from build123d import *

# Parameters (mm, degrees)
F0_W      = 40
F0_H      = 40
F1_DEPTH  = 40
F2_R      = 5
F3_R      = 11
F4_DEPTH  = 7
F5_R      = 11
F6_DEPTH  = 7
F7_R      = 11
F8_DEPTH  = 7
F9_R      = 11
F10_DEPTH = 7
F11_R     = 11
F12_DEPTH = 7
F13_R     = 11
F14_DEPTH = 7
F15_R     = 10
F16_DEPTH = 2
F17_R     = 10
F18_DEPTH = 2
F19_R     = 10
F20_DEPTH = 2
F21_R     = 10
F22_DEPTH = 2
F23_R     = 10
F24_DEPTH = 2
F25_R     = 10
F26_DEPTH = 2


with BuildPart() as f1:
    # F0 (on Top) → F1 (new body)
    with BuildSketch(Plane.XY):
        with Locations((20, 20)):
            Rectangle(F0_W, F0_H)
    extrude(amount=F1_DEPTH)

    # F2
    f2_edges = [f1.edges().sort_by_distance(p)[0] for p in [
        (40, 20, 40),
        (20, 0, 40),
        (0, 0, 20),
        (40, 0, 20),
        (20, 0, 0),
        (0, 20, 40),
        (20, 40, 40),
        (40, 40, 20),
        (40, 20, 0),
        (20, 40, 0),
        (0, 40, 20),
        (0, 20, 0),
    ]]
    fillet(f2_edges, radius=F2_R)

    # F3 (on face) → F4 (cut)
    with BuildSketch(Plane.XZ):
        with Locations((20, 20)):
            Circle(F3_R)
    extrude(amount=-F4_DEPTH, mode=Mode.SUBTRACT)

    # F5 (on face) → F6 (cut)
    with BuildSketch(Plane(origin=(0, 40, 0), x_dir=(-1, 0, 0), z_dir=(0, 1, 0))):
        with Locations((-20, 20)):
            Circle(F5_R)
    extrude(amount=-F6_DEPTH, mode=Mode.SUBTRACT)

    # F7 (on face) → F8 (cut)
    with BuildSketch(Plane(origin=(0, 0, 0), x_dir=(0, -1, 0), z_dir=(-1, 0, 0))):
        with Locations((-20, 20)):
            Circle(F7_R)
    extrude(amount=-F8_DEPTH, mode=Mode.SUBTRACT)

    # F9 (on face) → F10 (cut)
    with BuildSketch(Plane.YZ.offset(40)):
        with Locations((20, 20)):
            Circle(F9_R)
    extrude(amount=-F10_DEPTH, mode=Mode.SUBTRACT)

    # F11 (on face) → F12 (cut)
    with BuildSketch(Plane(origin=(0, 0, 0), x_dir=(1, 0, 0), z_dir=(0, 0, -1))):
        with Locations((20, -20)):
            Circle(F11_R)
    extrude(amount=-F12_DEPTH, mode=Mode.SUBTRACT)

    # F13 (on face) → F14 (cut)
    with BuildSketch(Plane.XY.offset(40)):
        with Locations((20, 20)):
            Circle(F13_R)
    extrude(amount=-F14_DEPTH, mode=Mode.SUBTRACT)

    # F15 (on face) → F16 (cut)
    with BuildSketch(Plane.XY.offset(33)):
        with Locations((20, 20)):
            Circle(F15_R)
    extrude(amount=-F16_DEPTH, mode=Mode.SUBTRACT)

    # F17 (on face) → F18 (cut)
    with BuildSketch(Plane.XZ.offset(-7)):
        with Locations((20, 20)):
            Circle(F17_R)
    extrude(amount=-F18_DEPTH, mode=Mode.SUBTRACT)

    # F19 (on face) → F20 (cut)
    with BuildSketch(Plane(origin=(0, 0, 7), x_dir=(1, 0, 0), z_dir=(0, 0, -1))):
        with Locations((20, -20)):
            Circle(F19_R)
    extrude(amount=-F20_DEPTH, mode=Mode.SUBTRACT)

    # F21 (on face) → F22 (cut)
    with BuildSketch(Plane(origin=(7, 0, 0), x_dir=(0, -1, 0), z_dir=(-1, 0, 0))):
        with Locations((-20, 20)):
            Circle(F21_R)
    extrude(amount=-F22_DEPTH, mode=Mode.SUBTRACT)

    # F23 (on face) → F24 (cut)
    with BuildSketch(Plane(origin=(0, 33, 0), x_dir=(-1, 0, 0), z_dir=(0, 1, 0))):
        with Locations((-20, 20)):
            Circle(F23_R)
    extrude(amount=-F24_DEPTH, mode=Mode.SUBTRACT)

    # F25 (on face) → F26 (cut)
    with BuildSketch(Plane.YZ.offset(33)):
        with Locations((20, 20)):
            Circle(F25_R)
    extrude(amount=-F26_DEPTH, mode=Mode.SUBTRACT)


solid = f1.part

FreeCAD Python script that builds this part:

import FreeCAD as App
import Part
import Sketcher
from FreeCAD import Vector
Q = App.Units.Quantity

doc = App.newDocument("Part")
body = doc.addObject("PartDesign::Body", "Body")

sketch1 = doc.addObject("Sketcher::SketchObject", "Sketch")
body.addObject(sketch1)
sketch1.AttachmentSupport = (doc.XY_Plane, [""])
sketch1.MapMode = "FlatFace"
sketch1.addGeometry([
    Part.LineSegment(Vector(0, 40, 0), Vector(0, 0, 0)),
    Part.LineSegment(Vector(0, 0, 0), Vector(40, 0, 0)),
    Part.LineSegment(Vector(40, 0, 0), Vector(40, 40, 0)),
    Part.LineSegment(Vector(40, 40, 0), Vector(0, 40, 0)),
], False)
sketch1.addConstraint([
    Sketcher.Constraint("Coincident", 0, 2, 1, 1),
    Sketcher.Constraint("Coincident", 1, 2, 2, 1),
    Sketcher.Constraint("Coincident", 2, 2, 3, 1),
    Sketcher.Constraint("Coincident", 3, 2, 0, 1),
    Sketcher.Constraint("Vertical", 0),
    Sketcher.Constraint("Horizontal", 1),
    Sketcher.Constraint("Vertical", 2),
    Sketcher.Constraint("Horizontal", 3),
    Sketcher.Constraint("Coincident", 0, 2, -1, 1),
    Sketcher.Constraint("Equal", 3, 0),
    Sketcher.Constraint("DistanceX", 1, 1, 1, 2, Q("40 mm")),
])
pad1 = doc.addObject("PartDesign::Pad", "Pad")
body.addObject(pad1)
pad1.Profile = sketch1
pad1.Length = 40
doc.recompute()

fillet = doc.addObject("PartDesign::Fillet", "Fillet")
body.addObject(fillet)
fillet.Base = (pad1, ["Edge1"])
fillet.UseAllEdges = True
fillet.Radius = 5

sketch2 = doc.addObject("Sketcher::SketchObject", "Sketch001")
body.addObject(sketch2)
sketch2.AttachmentSupport = (doc.XZ_Plane, [""])
sketch2.MapMode = "FlatFace"
sketch2.addGeometry(Part.Circle(Vector(20, 20, 0), Vector(0, 0, 1), 11), False)
sketch2.addConstraint([
    Sketcher.Constraint("Diameter", 0, Q("22 mm")),
    Sketcher.Constraint("DistanceX", -1, 1, 0, 3, Q("20 mm")),
    Sketcher.Constraint("DistanceY", -1, 1, 0, 3, Q("20 mm")),
])
pocket1 = doc.addObject("PartDesign::Pocket", "Pocket")
body.addObject(pocket1)
pocket1.Profile = sketch2
pocket1.Length = 7

sketch3 = doc.addObject("Sketcher::SketchObject", "Sketch002")
body.addObject(sketch3)
sketch3.AttachmentSupport = (doc.XZ_Plane, [""])
sketch3.MapMode = "FlatFace"
sketch3.AttachmentOffset = App.Placement(Vector(0, 0, -40), App.Rotation())
sketch3.addGeometry(Part.Circle(Vector(20, 20, 0), Vector(0, 0, 1), 11), False)
sketch3.addConstraint([
    Sketcher.Constraint("Diameter", 0, Q("22 mm")),
    Sketcher.Constraint("DistanceX", -1, 1, 0, 3, Q("20 mm")),
    Sketcher.Constraint("DistanceY", -1, 1, 0, 3, Q("20 mm")),
])
pocket2 = doc.addObject("PartDesign::Pocket", "Pocket001")
body.addObject(pocket2)
pocket2.Profile = sketch3
pocket2.Length = 7
pocket2.Reversed = True

sketch4 = doc.addObject("Sketcher::SketchObject", "Sketch003")
body.addObject(sketch4)
sketch4.AttachmentSupport = (doc.YZ_Plane, [""])
sketch4.MapMode = "FlatFace"
sketch4.addGeometry(Part.Circle(Vector(20, 20, 0), Vector(0, 0, 1), 11), False)
sketch4.addConstraint([
    Sketcher.Constraint("Diameter", 0, Q("22 mm")),
    Sketcher.Constraint("DistanceX", -1, 1, 0, 3, Q("20 mm")),
    Sketcher.Constraint("DistanceY", -1, 1, 0, 3, Q("20 mm")),
])
pocket3 = doc.addObject("PartDesign::Pocket", "Pocket002")
body.addObject(pocket3)
pocket3.Profile = sketch4
pocket3.Length = 7
pocket3.Reversed = True

sketch5 = doc.addObject("Sketcher::SketchObject", "Sketch004")
body.addObject(sketch5)
sketch5.AttachmentSupport = (doc.YZ_Plane, [""])
sketch5.MapMode = "FlatFace"
sketch5.AttachmentOffset = App.Placement(Vector(0, 0, 40), App.Rotation())
sketch5.addGeometry(Part.Circle(Vector(20, 20, 0), Vector(0, 0, 1), 11), False)
sketch5.addConstraint([
    Sketcher.Constraint("Diameter", 0, Q("22 mm")),
    Sketcher.Constraint("DistanceX", -1, 1, 0, 3, Q("20 mm")),
    Sketcher.Constraint("DistanceY", -1, 1, 0, 3, Q("20 mm")),
])
pocket4 = doc.addObject("PartDesign::Pocket", "Pocket003")
body.addObject(pocket4)
pocket4.Profile = sketch5
pocket4.Length = 7

sketch6 = doc.addObject("Sketcher::SketchObject", "Sketch005")
body.addObject(sketch6)
sketch6.AttachmentSupport = (doc.XY_Plane, [""])
sketch6.MapMode = "FlatFace"
sketch6.addGeometry(Part.Circle(Vector(20, 20, 0), Vector(0, 0, 1), 11), False)
sketch6.addConstraint([
    Sketcher.Constraint("Diameter", 0, Q("22 mm")),
    Sketcher.Constraint("DistanceX", -1, 1, 0, 3, Q("20 mm")),
    Sketcher.Constraint("DistanceY", -1, 1, 0, 3, Q("20 mm")),
])
pocket5 = doc.addObject("PartDesign::Pocket", "Pocket004")
body.addObject(pocket5)
pocket5.Profile = sketch6
pocket5.Length = 7
pocket5.Reversed = True

sketch7 = doc.addObject("Sketcher::SketchObject", "Sketch006")
body.addObject(sketch7)
sketch7.AttachmentSupport = (doc.XY_Plane, [""])
sketch7.MapMode = "FlatFace"
sketch7.AttachmentOffset = App.Placement(Vector(0, 0, 40), App.Rotation())
sketch7.addGeometry(Part.Circle(Vector(20, 20, 0), Vector(0, 0, 1), 11), False)
sketch7.addConstraint([
    Sketcher.Constraint("Diameter", 0, Q("22 mm")),
    Sketcher.Constraint("DistanceX", -1, 1, 0, 3, Q("20 mm")),
    Sketcher.Constraint("DistanceY", -1, 1, 0, 3, Q("20 mm")),
])
pocket6 = doc.addObject("PartDesign::Pocket", "Pocket005")
body.addObject(pocket6)
pocket6.Profile = sketch7
pocket6.Length = 7

sketch8 = doc.addObject("Sketcher::SketchObject", "Sketch007")
body.addObject(sketch8)
sketch8.AttachmentSupport = (doc.XY_Plane, [""])
sketch8.MapMode = "FlatFace"
sketch8.AttachmentOffset = App.Placement(Vector(0, 0, 33), App.Rotation())
sketch8.addGeometry(Part.Circle(Vector(20, 20, 0), Vector(0, 0, 1), 10), False)
sketch8.addConstraint([
    Sketcher.Constraint("Diameter", 0, Q("20 mm")),
    Sketcher.Constraint("DistanceX", -1, 1, 0, 3, Q("20 mm")),
    Sketcher.Constraint("DistanceY", -1, 1, 0, 3, Q("20 mm")),
])
pocket7 = doc.addObject("PartDesign::Pocket", "Pocket006")
body.addObject(pocket7)
pocket7.Profile = sketch8
pocket7.Length = 2

sketch9 = doc.addObject("Sketcher::SketchObject", "Sketch008")
body.addObject(sketch9)
sketch9.AttachmentSupport = (doc.XZ_Plane, [""])
sketch9.MapMode = "FlatFace"
sketch9.AttachmentOffset = App.Placement(Vector(0, 0, -7), App.Rotation())
sketch9.addGeometry(Part.Circle(Vector(20, 20, 0), Vector(0, 0, 1), 10), False)
sketch9.addConstraint([
    Sketcher.Constraint("Diameter", 0, Q("20 mm")),
    Sketcher.Constraint("DistanceX", -1, 1, 0, 3, Q("20 mm")),
    Sketcher.Constraint("DistanceY", -1, 1, 0, 3, Q("20 mm")),
])
pocket8 = doc.addObject("PartDesign::Pocket", "Pocket007")
body.addObject(pocket8)
pocket8.Profile = sketch9
pocket8.Length = 2

sketch10 = doc.addObject("Sketcher::SketchObject", "Sketch009")
body.addObject(sketch10)
sketch10.AttachmentSupport = (doc.XY_Plane, [""])
sketch10.MapMode = "FlatFace"
sketch10.AttachmentOffset = App.Placement(Vector(0, 0, 7), App.Rotation())
sketch10.addGeometry(Part.Circle(Vector(20, 20, 0), Vector(0, 0, 1), 10), False)
sketch10.addConstraint([
    Sketcher.Constraint("Diameter", 0, Q("20 mm")),
    Sketcher.Constraint("DistanceX", -1, 1, 0, 3, Q("20 mm")),
    Sketcher.Constraint("DistanceY", -1, 1, 0, 3, Q("20 mm")),
])
pocket9 = doc.addObject("PartDesign::Pocket", "Pocket008")
body.addObject(pocket9)
pocket9.Profile = sketch10
pocket9.Length = 2
pocket9.Reversed = True

sketch11 = doc.addObject("Sketcher::SketchObject", "Sketch010")
body.addObject(sketch11)
sketch11.AttachmentSupport = (doc.YZ_Plane, [""])
sketch11.MapMode = "FlatFace"
sketch11.AttachmentOffset = App.Placement(Vector(0, 0, 7), App.Rotation())
sketch11.addGeometry(Part.Circle(Vector(20, 20, 0), Vector(0, 0, 1), 10), False)
sketch11.addConstraint([
    Sketcher.Constraint("Diameter", 0, Q("20 mm")),
    Sketcher.Constraint("DistanceX", -1, 1, 0, 3, Q("20 mm")),
    Sketcher.Constraint("DistanceY", -1, 1, 0, 3, Q("20 mm")),
])
pocket10 = doc.addObject("PartDesign::Pocket", "Pocket009")
body.addObject(pocket10)
pocket10.Profile = sketch11
pocket10.Length = 2
pocket10.Reversed = True

sketch12 = doc.addObject("Sketcher::SketchObject", "Sketch011")
body.addObject(sketch12)
sketch12.AttachmentSupport = (doc.XZ_Plane, [""])
sketch12.MapMode = "FlatFace"
sketch12.AttachmentOffset = App.Placement(Vector(0, 0, -33), App.Rotation())
sketch12.addGeometry(Part.Circle(Vector(20, 20, 0), Vector(0, 0, 1), 10), False)
sketch12.addConstraint([
    Sketcher.Constraint("Diameter", 0, Q("20 mm")),
    Sketcher.Constraint("DistanceX", -1, 1, 0, 3, Q("20 mm")),
    Sketcher.Constraint("DistanceY", -1, 1, 0, 3, Q("20 mm")),
])
pocket11 = doc.addObject("PartDesign::Pocket", "Pocket010")
body.addObject(pocket11)
pocket11.Profile = sketch12
pocket11.Length = 2
pocket11.Reversed = True

sketch13 = doc.addObject("Sketcher::SketchObject", "Sketch012")
body.addObject(sketch13)
sketch13.AttachmentSupport = (doc.YZ_Plane, [""])
sketch13.MapMode = "FlatFace"
sketch13.AttachmentOffset = App.Placement(Vector(0, 0, 33), App.Rotation())
sketch13.addGeometry(Part.Circle(Vector(20, 20, 0), Vector(0, 0, 1), 10), False)
sketch13.addConstraint([
    Sketcher.Constraint("Diameter", 0, Q("20 mm")),
    Sketcher.Constraint("DistanceX", -1, 1, 0, 3, Q("20 mm")),
    Sketcher.Constraint("DistanceY", -1, 1, 0, 3, Q("20 mm")),
])
pocket12 = doc.addObject("PartDesign::Pocket", "Pocket011")
body.addObject(pocket12)
pocket12.Profile = sketch13
pocket12.Length = 2

doc.recompute()
